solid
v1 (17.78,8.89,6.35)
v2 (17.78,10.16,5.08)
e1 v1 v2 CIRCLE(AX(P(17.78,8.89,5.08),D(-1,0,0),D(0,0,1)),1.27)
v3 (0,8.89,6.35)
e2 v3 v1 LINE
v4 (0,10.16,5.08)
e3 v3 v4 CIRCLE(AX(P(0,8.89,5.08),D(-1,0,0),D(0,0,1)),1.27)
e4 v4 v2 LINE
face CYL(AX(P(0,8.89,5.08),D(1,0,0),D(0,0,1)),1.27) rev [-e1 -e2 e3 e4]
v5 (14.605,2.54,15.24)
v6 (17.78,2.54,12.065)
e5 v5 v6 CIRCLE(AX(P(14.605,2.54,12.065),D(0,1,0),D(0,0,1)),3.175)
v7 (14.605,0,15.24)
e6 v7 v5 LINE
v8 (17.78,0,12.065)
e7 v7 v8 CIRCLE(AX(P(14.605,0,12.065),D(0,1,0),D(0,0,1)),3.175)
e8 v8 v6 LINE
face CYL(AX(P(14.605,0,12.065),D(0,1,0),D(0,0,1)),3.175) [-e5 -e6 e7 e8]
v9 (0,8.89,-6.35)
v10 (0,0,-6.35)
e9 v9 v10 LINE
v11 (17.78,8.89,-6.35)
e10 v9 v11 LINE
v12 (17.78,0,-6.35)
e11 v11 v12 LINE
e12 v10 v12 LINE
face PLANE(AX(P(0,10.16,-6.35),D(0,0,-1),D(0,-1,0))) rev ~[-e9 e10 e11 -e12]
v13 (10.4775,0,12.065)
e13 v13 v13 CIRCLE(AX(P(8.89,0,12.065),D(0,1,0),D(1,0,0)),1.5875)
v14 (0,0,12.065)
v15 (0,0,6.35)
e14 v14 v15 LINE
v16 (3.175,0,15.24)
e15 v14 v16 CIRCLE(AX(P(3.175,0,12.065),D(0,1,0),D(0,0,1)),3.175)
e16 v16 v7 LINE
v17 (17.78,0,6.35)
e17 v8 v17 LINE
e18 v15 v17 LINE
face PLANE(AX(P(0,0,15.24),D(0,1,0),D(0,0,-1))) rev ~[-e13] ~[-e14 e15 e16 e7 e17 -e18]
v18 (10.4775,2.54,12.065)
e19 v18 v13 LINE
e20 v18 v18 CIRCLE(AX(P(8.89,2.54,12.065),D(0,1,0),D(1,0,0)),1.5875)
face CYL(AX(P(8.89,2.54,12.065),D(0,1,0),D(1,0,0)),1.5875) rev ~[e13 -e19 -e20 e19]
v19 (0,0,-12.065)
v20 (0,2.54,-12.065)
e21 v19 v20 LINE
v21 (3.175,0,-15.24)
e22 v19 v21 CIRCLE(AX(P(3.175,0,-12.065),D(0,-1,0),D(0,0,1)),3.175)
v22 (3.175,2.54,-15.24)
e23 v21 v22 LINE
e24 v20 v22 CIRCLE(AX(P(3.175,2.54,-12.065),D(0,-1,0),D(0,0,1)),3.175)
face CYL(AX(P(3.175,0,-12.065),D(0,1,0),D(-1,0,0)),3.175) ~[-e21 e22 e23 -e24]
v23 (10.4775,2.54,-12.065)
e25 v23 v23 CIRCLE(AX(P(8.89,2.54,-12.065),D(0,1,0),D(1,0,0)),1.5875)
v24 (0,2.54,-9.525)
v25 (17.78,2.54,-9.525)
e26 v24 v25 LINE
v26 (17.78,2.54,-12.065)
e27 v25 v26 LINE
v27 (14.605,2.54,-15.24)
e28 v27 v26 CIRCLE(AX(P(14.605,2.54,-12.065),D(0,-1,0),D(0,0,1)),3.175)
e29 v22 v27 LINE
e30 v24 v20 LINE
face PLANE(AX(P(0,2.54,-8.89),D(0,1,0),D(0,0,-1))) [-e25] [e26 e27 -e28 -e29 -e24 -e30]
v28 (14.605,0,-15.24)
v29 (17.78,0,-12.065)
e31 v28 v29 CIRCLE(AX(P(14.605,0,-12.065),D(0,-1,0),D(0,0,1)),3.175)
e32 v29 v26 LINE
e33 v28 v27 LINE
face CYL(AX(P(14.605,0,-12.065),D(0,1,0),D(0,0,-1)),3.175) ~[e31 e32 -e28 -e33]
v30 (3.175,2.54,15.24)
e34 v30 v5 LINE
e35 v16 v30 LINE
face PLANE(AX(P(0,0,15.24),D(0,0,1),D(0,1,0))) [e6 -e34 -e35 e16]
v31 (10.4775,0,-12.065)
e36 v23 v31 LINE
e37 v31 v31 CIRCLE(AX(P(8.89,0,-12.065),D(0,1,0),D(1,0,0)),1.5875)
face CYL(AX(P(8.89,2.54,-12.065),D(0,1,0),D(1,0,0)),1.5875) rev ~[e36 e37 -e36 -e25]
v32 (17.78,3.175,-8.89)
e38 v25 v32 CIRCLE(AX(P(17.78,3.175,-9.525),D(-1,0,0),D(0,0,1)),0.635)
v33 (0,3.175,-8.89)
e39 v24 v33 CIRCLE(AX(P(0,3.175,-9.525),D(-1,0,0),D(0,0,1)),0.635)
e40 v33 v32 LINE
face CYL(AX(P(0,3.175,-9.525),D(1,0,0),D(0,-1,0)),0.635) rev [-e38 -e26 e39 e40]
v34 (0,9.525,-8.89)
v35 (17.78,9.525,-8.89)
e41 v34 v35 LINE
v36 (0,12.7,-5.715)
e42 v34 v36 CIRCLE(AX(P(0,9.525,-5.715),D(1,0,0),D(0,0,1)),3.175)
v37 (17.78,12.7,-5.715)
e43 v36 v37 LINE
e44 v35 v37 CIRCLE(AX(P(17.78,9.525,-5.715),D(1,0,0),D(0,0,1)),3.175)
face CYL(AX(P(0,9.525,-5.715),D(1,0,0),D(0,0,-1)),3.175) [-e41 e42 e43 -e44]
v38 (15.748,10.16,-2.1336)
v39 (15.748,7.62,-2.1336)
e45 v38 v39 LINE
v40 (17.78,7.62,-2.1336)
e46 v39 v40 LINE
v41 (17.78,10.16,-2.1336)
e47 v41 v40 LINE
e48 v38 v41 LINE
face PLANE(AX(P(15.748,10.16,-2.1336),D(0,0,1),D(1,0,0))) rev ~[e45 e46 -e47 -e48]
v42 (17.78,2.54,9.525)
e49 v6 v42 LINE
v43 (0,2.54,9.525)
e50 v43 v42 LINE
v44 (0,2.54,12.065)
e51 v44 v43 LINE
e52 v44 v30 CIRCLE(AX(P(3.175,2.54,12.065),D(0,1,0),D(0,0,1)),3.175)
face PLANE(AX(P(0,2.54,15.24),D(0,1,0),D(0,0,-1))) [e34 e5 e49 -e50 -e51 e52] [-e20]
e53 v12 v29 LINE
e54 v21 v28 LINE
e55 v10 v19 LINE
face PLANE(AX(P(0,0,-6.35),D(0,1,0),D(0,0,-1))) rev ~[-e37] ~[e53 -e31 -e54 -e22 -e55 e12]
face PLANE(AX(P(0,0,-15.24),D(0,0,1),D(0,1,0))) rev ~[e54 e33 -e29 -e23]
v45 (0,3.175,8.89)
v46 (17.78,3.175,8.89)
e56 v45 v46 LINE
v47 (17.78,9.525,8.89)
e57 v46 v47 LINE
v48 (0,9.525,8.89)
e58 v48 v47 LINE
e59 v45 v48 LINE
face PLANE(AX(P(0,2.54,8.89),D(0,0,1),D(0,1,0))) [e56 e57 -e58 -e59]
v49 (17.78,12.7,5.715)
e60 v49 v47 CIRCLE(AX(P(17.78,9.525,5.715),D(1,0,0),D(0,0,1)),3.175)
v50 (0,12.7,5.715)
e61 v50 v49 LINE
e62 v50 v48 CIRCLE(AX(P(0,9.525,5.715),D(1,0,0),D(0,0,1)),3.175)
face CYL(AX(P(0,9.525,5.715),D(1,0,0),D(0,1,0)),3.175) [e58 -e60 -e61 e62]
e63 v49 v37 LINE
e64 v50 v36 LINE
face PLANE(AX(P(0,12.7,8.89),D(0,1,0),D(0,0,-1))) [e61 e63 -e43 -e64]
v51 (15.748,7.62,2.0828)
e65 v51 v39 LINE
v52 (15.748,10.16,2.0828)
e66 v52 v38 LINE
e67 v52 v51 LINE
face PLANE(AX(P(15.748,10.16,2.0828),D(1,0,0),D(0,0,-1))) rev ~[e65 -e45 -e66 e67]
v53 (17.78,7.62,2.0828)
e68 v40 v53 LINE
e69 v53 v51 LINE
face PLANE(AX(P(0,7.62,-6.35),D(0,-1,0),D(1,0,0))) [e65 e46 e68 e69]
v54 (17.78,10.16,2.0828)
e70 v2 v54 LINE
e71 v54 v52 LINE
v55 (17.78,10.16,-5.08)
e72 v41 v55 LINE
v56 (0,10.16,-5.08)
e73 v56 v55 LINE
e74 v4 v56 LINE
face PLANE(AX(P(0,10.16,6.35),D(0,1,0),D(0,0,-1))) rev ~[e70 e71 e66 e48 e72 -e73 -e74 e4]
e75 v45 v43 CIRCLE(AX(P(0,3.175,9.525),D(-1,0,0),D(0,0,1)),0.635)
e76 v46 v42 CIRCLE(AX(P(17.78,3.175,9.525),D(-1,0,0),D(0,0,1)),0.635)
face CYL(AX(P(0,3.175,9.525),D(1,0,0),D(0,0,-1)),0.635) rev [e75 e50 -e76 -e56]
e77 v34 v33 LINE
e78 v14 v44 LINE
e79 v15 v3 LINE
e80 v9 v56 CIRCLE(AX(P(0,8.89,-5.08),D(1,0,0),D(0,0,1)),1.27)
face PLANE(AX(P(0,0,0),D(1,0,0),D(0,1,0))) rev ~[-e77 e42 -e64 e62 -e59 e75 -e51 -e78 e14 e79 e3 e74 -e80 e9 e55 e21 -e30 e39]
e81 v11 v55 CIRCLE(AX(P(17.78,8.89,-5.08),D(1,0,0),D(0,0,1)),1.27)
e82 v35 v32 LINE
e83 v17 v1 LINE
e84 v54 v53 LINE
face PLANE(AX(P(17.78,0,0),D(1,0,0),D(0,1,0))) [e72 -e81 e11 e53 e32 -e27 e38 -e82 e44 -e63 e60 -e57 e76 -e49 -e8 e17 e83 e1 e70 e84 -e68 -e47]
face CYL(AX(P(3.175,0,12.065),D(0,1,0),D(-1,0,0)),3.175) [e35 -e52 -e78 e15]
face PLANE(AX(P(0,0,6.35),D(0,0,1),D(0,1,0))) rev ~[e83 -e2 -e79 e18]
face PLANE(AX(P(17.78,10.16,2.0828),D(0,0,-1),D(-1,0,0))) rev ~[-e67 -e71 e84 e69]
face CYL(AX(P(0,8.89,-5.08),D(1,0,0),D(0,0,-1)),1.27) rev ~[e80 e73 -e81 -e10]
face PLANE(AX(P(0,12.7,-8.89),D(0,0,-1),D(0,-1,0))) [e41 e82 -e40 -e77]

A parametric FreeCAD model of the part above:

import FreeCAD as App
import Part
import Sketcher
Q = App.Units.Quantity


def edges_at(feature, points):
    """Names of the edges that pass closest to the given points."""
    edges = feature.Shape.Edges
    near = lambda p: min(range(len(edges)), key=lambda i: edges[i].distToShape(Part.Vertex(*p))[0])
    return sorted({f"Edge{near(p) + 1}" for p in points})


def add_polygon(sketch, points):
    """Adds a closed chain of lines whose ends are joined by coincident constraints."""
    first, n = sketch.GeometryCount, len(points)
    for a, b in zip(points, points[1:] + points[:1]):
        sketch.addGeometry(Part.LineSegment(App.Vector(*a, 0), App.Vector(*b, 0)), False)
    for i in range(n):
        sketch.addConstraint(Sketcher.Constraint("Coincident", first + i, 2, first + (i + 1) % n, 1))

doc = App.newDocument("Part")
params = doc.addObject("Spreadsheet::Sheet", "Params")
for row, (alias, value) in enumerate([
    ("sketch1_width", "0.1 in"),
    ("sketch1_width2", "0.4 in"),
    ("sketch1_height", "0.5 in"),
    ("sketch1_height2", "0.7 in"),
    ("sketch1_height3", "0.35 in"),
    ("pad1_length", "0.7 in"),
    ("sketch2_width", "0.08 in"),
    ("sketch2_height", "0.166 in"),
    ("pad2_length", "0.1 in"),
    ("fillet_radius", "0.05 in"),
    ("fillet2_radius", "0.125 in"),
    ("fillet3_radius", "0.125 in"),
    ("sketch3_diameter", "0.125 in"),
    ("pocket1_length", "0.275 in"),
    ("fillet4_radius", "0.025 in"),
], start=1):
    params.set(f"A{row}", alias)
    params.set(f"B{row}", "=" + value)
    params.setAlias(f"B{row}", alias)

body = doc.addObject("PartDesign::Body", "Body")

sketch1 = body.newObject("Sketcher::SketchObject", "Sketch")
sketch1.AttachmentSupport = (doc.getObject("YZ_Plane"), [""])
sketch1.MapMode = "FlatFace"
add_polygon(sketch1, [(2.54, 15.24), (0, 15.24), (0, 6.35), (10.16, 6.35), (10.16, -6.35), (0, -6.35), (0, -15.24), (2.54, -15.24), (2.54, -8.89), (12.7, -8.89), (12.7, 8.89), (2.54, 8.89)])
sketch1.addConstraint(Sketcher.Constraint("Horizontal", 0))
sketch1.addConstraint(Sketcher.Constraint("Vertical", 1))
sketch1.addConstraint(Sketcher.Constraint("Horizontal", 2))
sketch1.addConstraint(Sketcher.Constraint("Vertical", 3))
sketch1.addConstraint(Sketcher.Constraint("Horizontal", 4))
sketch1.addConstraint(Sketcher.Constraint("Vertical", 5))
sketch1.addConstraint(Sketcher.Constraint("Horizontal", 6))
sketch1.addConstraint(Sketcher.Constraint("Vertical", 7))
sketch1.addConstraint(Sketcher.Constraint("Horizontal", 8))
sketch1.addConstraint(Sketcher.Constraint("Vertical", 9))
sketch1.addConstraint(Sketcher.Constraint("Horizontal", 10))
sketch1.addConstraint(Sketcher.Constraint("Vertical", 11))
sketch1.addConstraint(Sketcher.Constraint("Symmetric", 1, 2, 4, 2, -1, 1))
sketch1.addConstraint(Sketcher.Constraint("Symmetric", 0, 2, 5, 2, -1))
sketch1.addConstraint(Sketcher.Constraint("Symmetric", 7, 2, 10, 2, -1))
sketch1.addConstraint(Sketcher.Constraint("Equal", 4, 8))
sketch1.addConstraint(Sketcher.Constraint("DistanceX", 0, 2, 0, 1, Q("0.1 in")))
sketch1.addConstraint(Sketcher.Constraint("DistanceX", 2, 1, 2, 2, Q("0.4 in")))
sketch1.addConstraint(Sketcher.Constraint("DistanceY", 3, 2, 3, 1, Q("0.5 in")))
sketch1.addConstraint(Sketcher.Constraint("DistanceY", 9, 1, 9, 2, Q("0.7 in")))
sketch1.addConstraint(Sketcher.Constraint("DistanceY", 1, 2, 1, 1, Q("0.35 in")))
sketch1.setExpression("Constraints[28]", "Params.sketch1_width")
sketch1.setExpression("Constraints[29]", "Params.sketch1_width2")
sketch1.setExpression("Constraints[30]", "Params.sketch1_height")
sketch1.setExpression("Constraints[31]", "Params.sketch1_height2")
sketch1.setExpression("Constraints[32]", "Params.sketch1_height3")
pad1 = body.newObject("PartDesign::Pad", "Pad")
pad1.Profile = sketch1
pad1.setExpression("Length", "Params.pad1_length")

sketch2 = body.newObject("Sketcher::SketchObject", "Sketch001")
sketch2.AttachmentSupport = (doc.getObject("XZ_Plane"), [""])
sketch2.MapMode = "FlatFace"
sketch2.AttachmentOffset = App.Placement(App.Vector(0, 0, -0.4 * 25.4), App.Rotation())
add_polygon(sketch2, [(17.78, -2.1336), (17.78, 2.0828), (15.748, 2.0828), (15.748, -2.1336)])
sketch2.addConstraint(Sketcher.Constraint("Vertical", 0))
sketch2.addConstraint(Sketcher.Constraint("Horizontal", 1))
sketch2.addConstraint(Sketcher.Constraint("Vertical", 2))
sketch2.addConstraint(Sketcher.Constraint("Horizontal", 3))
sketch2.addConstraint(Sketcher.Constraint("DistanceX", 1, 2, 1, 1, Q("0.08 in")))
sketch2.addConstraint(Sketcher.Constraint("DistanceY", 0, 1, 0, 2, Q("0.166 in")))
sketch2.addConstraint(Sketcher.Constraint("DistanceX", -1, 1, 0, 2, Q("0.7 in")))
sketch2.addConstraint(Sketcher.Constraint("DistanceY", -1, 1, 0, 2, Q("0.082 in")))
sketch2.setExpression("Constraints[8]", "Params.sketch2_width")
sketch2.setExpression("Constraints[9]", "Params.sketch2_height")
pad2 = body.newObject("PartDesign::Pad", "Pad001")
pad2.Profile = sketch2
pad2.setExpression("Length", "Params.pad2_length")
doc.recompute()

fillet = body.newObject("PartDesign::Fillet", "Fillet")
fillet.Base = (pad2, edges_at(pad2, [(8.89, 10.16, 6.35), (8.89, 10.16, -6.35)]))
fillet.setExpression("Radius", "Params.fillet_radius")
doc.recompute()

fillet2 = body.newObject("PartDesign::Fillet", "Fillet001")
fillet2.Base = (fillet, edges_at(fillet, [(8.89, 12.7, 8.89), (8.89, 12.7, -8.89)]))
fillet2.setExpression("Radius", "Params.fillet2_radius")
doc.recompute()

fillet3 = body.newObject("PartDesign::Fillet", "Fillet002")
fillet3.Base = (fillet2, edges_at(fillet2, [
    (17.78, 1.27, 15.24),
    (17.78, 1.27, -15.24),
    (0, 1.27, -15.24),
    (0, 1.27, 15.24),
]))
fillet3.setExpression("Radius", "Params.fillet3_radius")

sketch3 = body.newObject("Sketcher::SketchObject", "Sketch002")
sketch3.AttachmentSupport = (doc.getObject("XZ_Plane"), [""])
sketch3.MapMode = "FlatFace"
sketch3.AttachmentOffset = App.Placement(App.Vector(0, 0, -0.1 * 25.4), App.Rotation())
sketch3.addGeometry(Part.Circle(App.Vector(8.89, 12.065, 0), App.Vector(0, 0, 1), 1.5875), False)
sketch3.addGeometry(Part.Circle(App.Vector(8.89, -12.065, 0), App.Vector(0, 0, 1), 1.5875), False)
sketch3.addConstraint(Sketcher.Constraint("Equal", 0, 1))
sketch3.addConstraint(Sketcher.Constraint("Symmetric", 0, 3, 1, 3, -1))
sketch3.addConstraint(Sketcher.Constraint("Diameter", 0, Q("0.125 in")))
sketch3.addConstraint(Sketcher.Constraint("DistanceX", -1, 1, 0, 3, Q("0.35 in")))
sketch3.addConstraint(Sketcher.Constraint("DistanceY", 1, 3, 0, 3, Q("0.95 in")))
sketch3.setExpression("Constraints[2]", "Params.sketch3_diameter")
pocket1 = body.newObject("PartDesign::Pocket", "Pocket")
pocket1.Profile = sketch3
pocket1.setExpression("Length", "Params.pocket1_length")
pocket1.Reversed = True
doc.recompute()

fillet4 = body.newObject("PartDesign::Fillet", "Fillet003")
fillet4.Base = (pocket1, edges_at(pocket1, [(8.89, 2.54, 8.89), (8.89, 2.54, -8.89)]))
fillet4.setExpression("Radius", "Params.fillet4_radius")

doc.recompute()
